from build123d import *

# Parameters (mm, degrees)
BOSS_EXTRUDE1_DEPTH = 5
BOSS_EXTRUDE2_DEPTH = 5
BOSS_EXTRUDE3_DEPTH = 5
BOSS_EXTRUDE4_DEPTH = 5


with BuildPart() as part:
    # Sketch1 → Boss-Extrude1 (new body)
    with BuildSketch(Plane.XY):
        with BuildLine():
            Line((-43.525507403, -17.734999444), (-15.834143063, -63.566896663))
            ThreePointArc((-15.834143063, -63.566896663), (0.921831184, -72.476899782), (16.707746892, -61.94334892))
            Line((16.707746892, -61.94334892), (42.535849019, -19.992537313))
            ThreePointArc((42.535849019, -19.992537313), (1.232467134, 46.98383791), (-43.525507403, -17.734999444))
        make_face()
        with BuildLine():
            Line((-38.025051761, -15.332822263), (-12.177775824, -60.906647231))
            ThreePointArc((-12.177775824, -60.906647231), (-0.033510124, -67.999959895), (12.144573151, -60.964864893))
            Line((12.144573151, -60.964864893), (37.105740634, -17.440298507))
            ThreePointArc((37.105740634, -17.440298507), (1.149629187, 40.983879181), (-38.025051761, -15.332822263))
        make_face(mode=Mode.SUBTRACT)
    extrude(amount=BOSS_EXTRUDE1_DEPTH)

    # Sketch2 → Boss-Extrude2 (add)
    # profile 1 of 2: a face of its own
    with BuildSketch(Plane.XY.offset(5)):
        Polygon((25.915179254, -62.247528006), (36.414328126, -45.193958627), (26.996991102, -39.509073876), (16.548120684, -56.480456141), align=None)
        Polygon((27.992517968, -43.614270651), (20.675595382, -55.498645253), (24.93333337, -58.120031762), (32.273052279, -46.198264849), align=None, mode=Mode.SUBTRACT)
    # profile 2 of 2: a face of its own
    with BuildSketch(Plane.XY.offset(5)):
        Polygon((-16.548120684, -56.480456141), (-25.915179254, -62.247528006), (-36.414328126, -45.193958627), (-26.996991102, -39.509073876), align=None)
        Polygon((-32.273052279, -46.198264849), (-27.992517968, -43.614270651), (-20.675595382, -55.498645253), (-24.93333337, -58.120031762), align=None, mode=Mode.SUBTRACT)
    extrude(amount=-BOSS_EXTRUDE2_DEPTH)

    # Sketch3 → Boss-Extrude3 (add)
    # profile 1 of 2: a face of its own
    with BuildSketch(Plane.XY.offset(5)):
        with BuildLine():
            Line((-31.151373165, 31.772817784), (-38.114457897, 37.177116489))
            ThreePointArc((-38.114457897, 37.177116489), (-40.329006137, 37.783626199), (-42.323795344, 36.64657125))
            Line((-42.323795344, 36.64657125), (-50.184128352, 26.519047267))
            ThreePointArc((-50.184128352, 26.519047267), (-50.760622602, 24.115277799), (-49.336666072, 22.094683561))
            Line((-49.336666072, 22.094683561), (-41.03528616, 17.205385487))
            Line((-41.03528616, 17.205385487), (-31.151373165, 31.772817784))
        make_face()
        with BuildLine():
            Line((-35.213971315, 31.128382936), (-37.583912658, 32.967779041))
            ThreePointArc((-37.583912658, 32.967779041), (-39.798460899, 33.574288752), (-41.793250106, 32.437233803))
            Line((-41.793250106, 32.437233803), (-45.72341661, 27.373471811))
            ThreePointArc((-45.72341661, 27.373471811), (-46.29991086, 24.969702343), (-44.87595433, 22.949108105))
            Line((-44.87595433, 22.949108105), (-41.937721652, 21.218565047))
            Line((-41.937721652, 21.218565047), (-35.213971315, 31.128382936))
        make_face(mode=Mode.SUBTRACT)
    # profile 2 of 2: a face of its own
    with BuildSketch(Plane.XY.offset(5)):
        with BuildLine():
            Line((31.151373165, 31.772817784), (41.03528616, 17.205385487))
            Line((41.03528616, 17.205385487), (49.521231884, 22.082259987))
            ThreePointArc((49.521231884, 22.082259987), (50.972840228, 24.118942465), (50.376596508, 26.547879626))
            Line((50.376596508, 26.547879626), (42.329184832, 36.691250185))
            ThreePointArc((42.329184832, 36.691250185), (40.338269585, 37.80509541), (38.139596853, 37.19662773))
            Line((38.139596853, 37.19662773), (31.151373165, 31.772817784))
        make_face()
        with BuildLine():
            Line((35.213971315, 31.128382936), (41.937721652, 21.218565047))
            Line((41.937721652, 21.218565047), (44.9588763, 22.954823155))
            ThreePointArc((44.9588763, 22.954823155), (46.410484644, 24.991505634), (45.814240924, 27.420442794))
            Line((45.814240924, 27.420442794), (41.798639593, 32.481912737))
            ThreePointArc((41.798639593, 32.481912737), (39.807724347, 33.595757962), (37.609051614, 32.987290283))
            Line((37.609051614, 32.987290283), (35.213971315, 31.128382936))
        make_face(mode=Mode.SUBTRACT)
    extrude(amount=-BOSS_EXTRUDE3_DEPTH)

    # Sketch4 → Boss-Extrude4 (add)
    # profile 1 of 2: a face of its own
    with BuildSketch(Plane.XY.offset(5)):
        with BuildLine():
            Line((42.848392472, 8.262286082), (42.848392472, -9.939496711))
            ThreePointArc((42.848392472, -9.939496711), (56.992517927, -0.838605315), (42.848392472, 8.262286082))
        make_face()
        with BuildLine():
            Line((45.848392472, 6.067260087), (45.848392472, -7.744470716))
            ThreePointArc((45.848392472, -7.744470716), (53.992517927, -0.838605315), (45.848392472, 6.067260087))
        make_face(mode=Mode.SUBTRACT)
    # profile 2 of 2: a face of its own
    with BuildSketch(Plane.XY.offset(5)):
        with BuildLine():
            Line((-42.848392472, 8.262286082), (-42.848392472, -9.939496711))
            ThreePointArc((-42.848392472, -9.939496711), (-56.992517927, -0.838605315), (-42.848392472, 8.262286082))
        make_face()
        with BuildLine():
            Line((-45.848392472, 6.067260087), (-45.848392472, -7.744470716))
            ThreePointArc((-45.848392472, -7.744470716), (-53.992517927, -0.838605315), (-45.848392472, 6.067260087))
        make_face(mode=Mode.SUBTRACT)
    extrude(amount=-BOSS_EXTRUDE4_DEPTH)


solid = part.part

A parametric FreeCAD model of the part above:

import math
import FreeCAD as App
import Part
import Sketcher

V = App.Vector
Q = App.Units.Quantity


def add_polygon(sketch, points):
    """Adds a closed chain of lines whose ends are joined by coincident constraints."""
    first, n = sketch.GeometryCount, len(points)
    for a, b in zip(points, points[1:] + points[:1]):
        sketch.addGeometry(Part.LineSegment(App.Vector(*a, 0), App.Vector(*b, 0)), False)
    for i in range(n):
        sketch.addConstraint(Sketcher.Constraint("Coincident", first + i, 2, first + (i + 1) % n, 1))

doc = App.newDocument("Part")
body = doc.addObject("PartDesign::Body", "Body")

# Sketch on XY plane
sketch1 = body.newObject("Sketcher::SketchObject", "Sketch")
sketch1.AttachmentSupport = (doc.getObject("XY_Plane"), [""])
sketch1.MapMode = "FlatFace"
sketch1.addGeometry([
    Part.LineSegment(V(-44, -18, 0), V(-16, -64, 0)),  # 0
    Part.ArcOfCircle(Part.Circle(V(0, -54, 0), V(0, 0, 1), 18), math.radians(-149), math.radians(-25)),  # 1
    Part.LineSegment(V(17, -62, 0), V(43, -20, 0)),  # 2
    Part.ArcOfCircle(Part.Circle(V(0, 0, 0), V(0, 0, 1), 47), math.radians(-25), math.radians(202)),  # 3
    Part.LineSegment(V(-12, -61, 0), V(-38, -15, 0)),  # 4
    Part.ArcOfCircle(Part.Circle(V(0, 0, 0), V(0, 0, 1), 41), math.radians(-25), math.radians(202)),  # 5
    Part.LineSegment(V(37, -17, 0), V(12, -61, 0)),  # 6
    Part.ArcOfCircle(Part.Circle(V(0, -54, 0), V(0, 0, 1), 14), math.radians(-150), math.radians(-30)),  # 7
], False)
sketch1.addConstraint([
    Sketcher.Constraint("Tangent", 0, 2, 1, 1),
    Sketcher.Constraint("Coincident", 1, 2, 2, 1),
    Sketcher.Constraint("Coincident", 2, 2, 3, 1),
    Sketcher.Constraint("Coincident", 3, 2, 0, 1),
    Sketcher.Constraint("Coincident", 4, 2, 5, 2),
    Sketcher.Constraint("Coincident", 5, 1, 6, 1),
    Sketcher.Constraint("Tangent", 6, 2, 7, 2),
    Sketcher.Constraint("Tangent", 7, 1, 4, 1),
    Sketcher.Constraint("Coincident", 3, 3, -1, 1),
    Sketcher.Constraint("Coincident", 5, 3, -1, 1),
    Sketcher.Constraint("Coincident", 7, 3, 1, 3),
    Sketcher.Constraint("PointOnObject", 1, 3, -2),
    Sketcher.Constraint("Radius", 3, Q("47 mm")),
    Sketcher.Constraint("Radius", 5, Q("41 mm")),
    Sketcher.Constraint("Radius", 7, Q("14 mm")),
    Sketcher.Constraint("DistanceY", 1, 3, -1, 1, Q("54 mm")),
    Sketcher.Constraint("Radius", 1, Q("18.499881 mm")),
    Sketcher.Constraint("DistanceY", 3, 2, -1, 1, Q("17.734999 mm")),
    Sketcher.Constraint("Distance", 2, Q("49.264201 mm")),
    Sketcher.Constraint("DistanceY", 5, 1, -1, 1, Q("17.440299 mm")),
    Sketcher.Constraint("DistanceY", 1, 2, 7, 1, Q("1.036702 mm")),
    Sketcher.Constraint("DistanceX", -1, 1, 2, 2, Q("42.535849 mm")),
])
pad1 = body.newObject("PartDesign::Pad", "Pad")
pad1.Profile = sketch1
pad1.Length = 5

# Sketch on XY plane
sketch2 = body.newObject("Sketcher::SketchObject", "Sketch001")
sketch2.AttachmentSupport = (doc.getObject("XY_Plane"), [""])
sketch2.MapMode = "FlatFace"
sketch2.AttachmentOffset = App.Placement(V(0, 0, 5), App.Rotation())
add_polygon(sketch2, [(26, -62), (36, -45), (27, -40), (17, -56)])  # lines 0-3
add_polygon(sketch2, [(21, -55), (28, -44), (32, -46), (25, -58)])  # lines 4-7
add_polygon(sketch2, [(-26, -62), (-17, -56), (-27, -40), (-36, -45)])  # lines 8-11
add_polygon(sketch2, [(-32, -46), (-28, -44), (-21, -55), (-25, -58)])  # lines 12-15
sketch2.addConstraint([
    Sketcher.Constraint("Symmetric", 2, 2, 8, 2, -2),
    Sketcher.Constraint("Symmetric", 1, 2, 9, 2, -2),
    Sketcher.Constraint("Symmetric", 0, 2, 10, 2, -2),
    Sketcher.Constraint("Symmetric", 3, 2, 11, 2, -2),
    Sketcher.Constraint("Symmetric", 4, 2, 12, 2, -2),
    Sketcher.Constraint("Symmetric", 7, 2, 13, 2, -2),
    Sketcher.Constraint("Symmetric", 6, 2, 14, 2, -2),
    Sketcher.Constraint("Symmetric", 5, 2, 15, 2, -2),
    Sketcher.Constraint("Perpendicular", 2, 3),
    Sketcher.Constraint("Perpendicular", 3, 4),
    Sketcher.Constraint("Parallel", 1, 5),
    Sketcher.Constraint("Parallel", 0, 6),
    Sketcher.Constraint("Perpendicular", 4, 7),
    Sketcher.Constraint("Equal", 5, 7),
    Sketcher.Constraint("Distance", 5, Q("5 mm")),
    Sketcher.Constraint("Distance", 6, Q("14 mm")),
    Sketcher.Constraint("DistanceX", 8, 2, 3, 2, Q("42.4633 mm")),
    Sketcher.Constraint("Distance", 0, Q("20.026391 mm")),
    Sketcher.Constraint("Distance", 1, Q("11.000189 mm")),
    Sketcher.Constraint("DistanceX", -1, 1, 0, 2, Q("36.414328 mm")),
    Sketcher.Constraint("DistanceY", 0, 2, -1, 1, Q("45.193959 mm")),
    Sketcher.Constraint("DistanceX", -1, 1, 1, 2, Q("26.996991 mm")),
    Sketcher.Constraint("DistanceY", 4, 2, -1, 1, Q("43.614271 mm")),
    Sketcher.Constraint("DistanceX", 4, 2, 0, 2, Q("8.42181 mm")),
])
pad2 = body.newObject("PartDesign::Pad", "Pad001")
pad2.Profile = sketch2
pad2.Length = 5
pad2.Reversed = True

# Sketch on XY plane
sketch3 = body.newObject("Sketcher::SketchObject", "Sketch002")
sketch3.AttachmentSupport = (doc.getObject("XY_Plane"), [""])
sketch3.MapMode = "FlatFace"
sketch3.AttachmentOffset = App.Placement(V(0, 0, 5), App.Rotation())
sketch3.addGeometry([
    Part.LineSegment(V(-31.2, 31.8, 0), V(-38.1, 37.2, 0)),  # 0
    Part.ArcOfCircle(Part.Circle(V(-40, 34.8, 0), V(0, 0, 1), 3), math.radians(52), math.radians(142)),  # 1
    Part.LineSegment(V(-42.3, 36.6, 0), V(-50.2, 26.5, 0)),  # 2
    Part.ArcOfCircle(Part.Circle(V(-47.8, 24.7, 0), V(0, 0, 1), 3), math.radians(142), math.radians(240)),  # 3
    Part.LineSegment(V(-49.3, 22.1, 0), V(-41, 17.2, 0)),  # 4
    Part.LineSegment(V(-41, 17.2, 0), V(-31.2, 31.8, 0)),  # 5
    Part.LineSegment(V(-37.6, 33, 0), V(-35.2, 31.1, 0)),  # 6
    Part.LineSegment(V(-35.2, 31.1, 0), V(-41.9, 21.2, 0)),  # 7
    Part.LineSegment(V(-41.9, 21.2, 0), V(-44.9, 22.9, 0)),  # 8
    Part.ArcOfCircle(Part.Circle(V(-43.4, 25.5, 0), V(0, 0, 1), 3), math.radians(142), math.radians(240)),  # 9
    Part.LineSegment(V(-45.7, 27.4, 0), V(-41.8, 32.4, 0)),  # 10
    Part.ArcOfCircle(Part.Circle(V(-39.4, 30.6, 0), V(0, 0, 1), 3), math.radians(52), math.radians(142)),  # 11
    Part.LineSegment(V(31.2, 31.8, 0), V(41, 17.2, 0)),  # 12
    Part.LineSegment(V(41, 17.2, 0), V(49.5, 22.1, 0)),  # 13
    Part.ArcOfCircle(Part.Circle(V(48, 24.7, 0), V(0, 0, 1), 3), math.radians(-60), math.radians(38)),  # 14
    Part.LineSegment(V(50.4, 26.5, 0), V(42.3, 36.7, 0)),  # 15
    Part.ArcOfCircle(Part.Circle(V(40, 34.8, 0), V(0, 0, 1), 3), math.radians(38), math.radians(128)),  # 16
    Part.LineSegment(V(38.1, 37.2, 0), V(31.2, 31.8, 0)),  # 17
    Part.LineSegment(V(41.9, 21.2, 0), V(35.2, 31.1, 0)),  # 18
    Part.LineSegment(V(35.2, 31.1, 0), V(37.6, 33, 0)),  # 19
    Part.ArcOfCircle(Part.Circle(V(39.4, 30.6, 0), V(0, 0, 1), 3), math.radians(38), math.radians(128)),  # 20
    Part.LineSegment(V(41.8, 32.5, 0), V(45.8, 27.4, 0)),  # 21
    Part.ArcOfCircle(Part.Circle(V(43.5, 25.6, 0), V(0, 0, 1), 3), math.radians(-60), math.radians(38)),  # 22
    Part.LineSegment(V(45, 23, 0), V(41.9, 21.2, 0)),  # 23
], False)
sketch3.addConstraint([
    Sketcher.Constraint("Tangent", 0, 2, 1, 1),
    Sketcher.Constraint("Tangent", 1, 2, 2, 1),
    Sketcher.Constraint("Tangent", 2, 2, 3, 1),
    Sketcher.Constraint("Tangent", 3, 2, 4, 1),
    Sketcher.Constraint("Coincident", 4, 2, 5, 1),
    Sketcher.Constraint("Coincident", 5, 2, 0, 1),
    Sketcher.Constraint("Coincident", 6, 2, 7, 1),
    Sketcher.Constraint("Coincident", 7, 2, 8, 1),
    Sketcher.Constraint("Tangent", 8, 2, 9, 2),
    Sketcher.Constraint("Tangent", 9, 1, 10, 1),
    Sketcher.Constraint("Tangent", 10, 2, 11, 2),
    Sketcher.Constraint("Tangent", 11, 1, 6, 1),
    Sketcher.Constraint("Coincident", 12, 2, 13, 1),
    Sketcher.Constraint("Tangent", 13, 2, 14, 1),
    Sketcher.Constraint("Tangent", 14, 2, 15, 1),
    Sketcher.Constraint("Tangent", 15, 2, 16, 1),
    Sketcher.Constraint("Tangent", 16, 2, 17, 1),
    Sketcher.Constraint("Coincident", 17, 2, 12, 1),
    Sketcher.Constraint("Coincident", 18, 2, 19, 1),
    Sketcher.Constraint("Tangent", 19, 2, 20, 2),
    Sketcher.Constraint("Tangent", 20, 1, 21, 1),
    Sketcher.Constraint("Tangent", 21, 2, 22, 2),
    Sketcher.Constraint("Tangent", 22, 1, 23, 1),
    Sketcher.Constraint("Coincident", 23, 2, 18, 1),
    Sketcher.Constraint("Equal", 1, 3),
    Sketcher.Constraint("Equal", 3, 9),
    Sketcher.Constraint("Equal", 9, 11),
    Sketcher.Constraint("Equal", 11, 14),
    Sketcher.Constraint("Equal", 14, 16),
    Sketcher.Constraint("Equal", 16, 20),
    Sketcher.Constraint("Equal", 20, 22),
    Sketcher.Constraint("Symmetric", 4, 2, 12, 2, -2),
    Sketcher.Constraint("Symmetric", 5, 2, 17, 2, -2),
    Sketcher.Constraint("Symmetric", 6, 2, 18, 2, -2),
    Sketcher.Constraint("Symmetric", 7, 2, 23, 2, -2),
    Sketcher.Constraint("Perpendicular", 0, 2),
    Sketcher.Constraint("Perpendicular", 2, 6),
    Sketcher.Constraint("Parallel", 5, 7),
    Sketcher.Constraint("Parallel", 4, 8),
    Sketcher.Constraint("Perpendicular", 6, 10),
    Sketcher.Constraint("Parallel", 17, 19),
    Sketcher.Constraint("Parallel", 15, 21),
    Sketcher.Constraint("Parallel", 13, 23),
    Sketcher.Constraint("Radius", 1, Q("3 mm")),
    Sketcher.Constraint("Distance", 6, Q("3 mm")),
    Sketcher.Constraint("DistanceY", 22, 3, 14, 2, Q("0.992001 mm")),
    Sketcher.Constraint("Distance", 13, Q("9.787501 mm")),
    Sketcher.Constraint("DistanceY", 9, 3, 1, 3, Q("9.273099 mm")),
    Sketcher.Constraint("DistanceX", 11, 3, 16, 3, Q("79.402302 mm")),
    Sketcher.Constraint("DistanceX", 1, 3, 20, 3, Q("79.402302 mm")),
    Sketcher.Constraint("DistanceX", 20, 3, 22, 3, Q("4.015601 mm")),
    Sketcher.Constraint("DistanceY", 4, 2, 3, 2, Q("4.889298 mm")),
    Sketcher.Constraint("DistanceX", 3, 3, 4, 2, Q("6.778901 mm")),
    Sketcher.Constraint("DistanceY", 5, 2, 0, 2, Q("5.404299 mm")),
    Sketcher.Constraint("DistanceX", 6, 2, 5, 2, Q("4.062598 mm")),
    Sketcher.Constraint("DistanceY", 12, 2, 16, 3, Q("17.621301 mm")),
    Sketcher.Constraint("DistanceY", 20, 3, 15, 2, Q("6.073901 mm")),
    Sketcher.Constraint("Distance", 0, Q("8.814249 mm")),
    Sketcher.Constraint("Distance", 5, Q("17.604029 mm")),
    Sketcher.Constraint("DistanceY", -1, 1, 3, 3, Q("24.679651 mm")),
])
pad3 = body.newObject("PartDesign::Pad", "Pad002")
pad3.Profile = sketch3
pad3.Length = 5
pad3.Reversed = True

# Sketch on XY plane
sketch4 = body.newObject("Sketcher::SketchObject", "Sketch003")
sketch4.AttachmentSupport = (doc.getObject("XY_Plane"), [""])
sketch4.MapMode = "FlatFace"
sketch4.AttachmentOffset = App.Placement(V(0, 0, 5), App.Rotation())
sketch4.addGeometry([
    Part.LineSegment(V(43, 8, 0), V(43, -10, 0)),  # 0
    Part.ArcOfCircle(Part.Circle(V(47, -1, 0), V(0, 0, 1), 10), math.radians(-114), math.radians(114)),  # 1
    Part.LineSegment(V(46, -8, 0), V(46, 6, 0)),  # 2
    Part.ArcOfCircle(Part.Circle(V(47, -1, 0), V(0, 0, 1), 7), math.radians(-99), math.radians(99)),  # 3
    Part.LineSegment(V(-43, -10, 0), V(-43, 8, 0)),  # 4
    Part.ArcOfCircle(Part.Circle(V(-47, -1, 0), V(0, 0, 1), 10), math.radians(66), math.radians(294)),  # 5
    Part.LineSegment(V(-46, 6, 0), V(-46, -8, 0)),  # 6
    Part.ArcOfCircle(Part.Circle(V(-47, -1, 0), V(0, 0, 1), 7), math.radians(81), math.radians(279)),  # 7
], False)
sketch4.addConstraint([
    Sketcher.Constraint("Coincident", 0, 1, 1, 2),
    Sketcher.Constraint("Coincident", 1, 1, 0, 2),
    Sketcher.Constraint("Coincident", 2, 1, 3, 1),
    Sketcher.Constraint("Coincident", 3, 2, 2, 2),
    Sketcher.Constraint("Coincident", 4, 1, 5, 2),
    Sketcher.Constraint("Coincident", 5, 1, 4, 2),
    Sketcher.Constraint("Coincident", 6, 1, 7, 1),
    Sketcher.Constraint("Coincident", 7, 2, 6, 2),
    Sketcher.Constraint("Vertical", 0),
    Sketcher.Constraint("Vertical", 2),
    Sketcher.Constraint("Vertical", 4),
    Sketcher.Constraint("Vertical", 6),
    Sketcher.Constraint("Coincident", 3, 3, 1, 3),
    Sketcher.Constraint("Coincident", 7, 3, 5, 3),
    Sketcher.Constraint("Equal", 1, 5),
    Sketcher.Constraint("Equal", 3, 7),
    Sketcher.Constraint("Symmetric", 1, 3, 5, 3, -2),
    Sketcher.Constraint("Horizontal", 1, 1, 4, 1),
    Sketcher.Constraint("Horizontal", 3, 2, 6, 1),
    Sketcher.Constraint("Radius", 1, Q("10 mm")),
    Sketcher.Constraint("Radius", 3, Q("7 mm")),
    Sketcher.Constraint("DistanceX", 1, 1, 2, 1, Q("3 mm")),
    Sketcher.Constraint("DistanceY", 2, 1, 2, 2, Q("13.811731 mm")),
    Sketcher.Constraint("DistanceY", 2, 1, -1, 1, Q("7.744471 mm")),
    Sketcher.Constraint("DistanceX", 5, 3, 0, 1, Q("89.84091 mm")),
])
pad4 = body.newObject("PartDesign::Pad", "Pad003")
pad4.Profile = sketch4
pad4.Length = 5
pad4.Reversed = True

doc.recompute()
